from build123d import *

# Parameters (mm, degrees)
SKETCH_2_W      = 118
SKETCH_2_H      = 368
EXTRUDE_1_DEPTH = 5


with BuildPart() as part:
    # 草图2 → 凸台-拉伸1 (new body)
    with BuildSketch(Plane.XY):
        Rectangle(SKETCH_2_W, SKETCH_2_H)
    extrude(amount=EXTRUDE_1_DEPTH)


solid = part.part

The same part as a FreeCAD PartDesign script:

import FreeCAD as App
import Part
import Sketcher
from FreeCAD import Vector
Q = App.Units.Quantity

doc = App.newDocument("Part")
body = doc.addObject("PartDesign::Body", "Body")

sketch1 = doc.addObject("Sketcher::SketchObject", "Sketch")
body.addObject(sketch1)
sketch1.AttachmentSupport = (doc.XY_Plane, [""])
sketch1.MapMode = "FlatFace"
sketch1.addGeometry(Part.LineSegment(Vector(-59, 184, 0), Vector(-59, -184, 0)), False)
sketch1.addGeometry(Part.LineSegment(Vector(-59, -184, 0), Vector(59, -184, 0)), False)
sketch1.addGeometry(Part.LineSegment(Vector(59, -184, 0), Vector(59, 184, 0)), False)
sketch1.addGeometry(Part.LineSegment(Vector(59, 184, 0), Vector(-59, 184, 0)), False)
sketch1.addConstraint(Sketcher.Constraint("Coincident", 0, 2, 1, 1))
sketch1.addConstraint(Sketcher.Constraint("Coincident", 1, 2, 2, 1))
sketch1.addConstraint(Sketcher.Constraint("Coincident", 2, 2, 3, 1))
sketch1.addConstraint(Sketcher.Constraint("Coincident", 3, 2, 0, 1))
sketch1.addConstraint(Sketcher.Constraint("Vertical", 0))
sketch1.addConstraint(Sketcher.Constraint("Horizontal", 1))
sketch1.addConstraint(Sketcher.Constraint("Vertical", 2))
sketch1.addConstraint(Sketcher.Constraint("Horizontal", 3))
sketch1.addConstraint(Sketcher.Constraint("Symmetric", 0, 2, 2, 2, -1, 1))
sketch1.addConstraint(Sketcher.Constraint("DistanceX", 1, 1, 1, 2, Q("118 mm")))
sketch1.addConstraint(Sketcher.Constraint("DistanceY", 0, 2, 0, 1, Q("368 mm")))
pad1 = doc.addObject("PartDesign::Pad", "Pad")
body.addObject(pad1)
pad1.Profile = sketch1
pad1.Length = 5

doc.recompute()
